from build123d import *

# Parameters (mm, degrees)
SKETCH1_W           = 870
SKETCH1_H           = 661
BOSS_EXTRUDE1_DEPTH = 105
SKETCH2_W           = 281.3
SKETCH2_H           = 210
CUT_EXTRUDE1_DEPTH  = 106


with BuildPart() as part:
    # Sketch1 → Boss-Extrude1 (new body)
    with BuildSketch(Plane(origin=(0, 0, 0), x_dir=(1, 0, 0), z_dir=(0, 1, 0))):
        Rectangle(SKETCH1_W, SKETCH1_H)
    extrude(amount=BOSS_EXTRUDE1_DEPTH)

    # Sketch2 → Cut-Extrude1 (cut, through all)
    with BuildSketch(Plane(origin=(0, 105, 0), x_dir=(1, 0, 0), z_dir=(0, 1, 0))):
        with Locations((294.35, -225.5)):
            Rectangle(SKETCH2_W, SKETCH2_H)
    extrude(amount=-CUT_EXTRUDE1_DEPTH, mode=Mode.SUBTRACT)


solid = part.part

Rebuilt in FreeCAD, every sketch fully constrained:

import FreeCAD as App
import Part
import Sketcher
from FreeCAD import Vector
Q = App.Units.Quantity


def add_polygon(sketch, points):
    """Adds a closed chain of lines whose ends are joined by coincident constraints."""
    first, n = sketch.GeometryCount, len(points)
    for a, b in zip(points, points[1:] + points[:1]):
        sketch.addGeometry(Part.LineSegment(App.Vector(*a, 0), App.Vector(*b, 0)), False)
    for i in range(n):
        sketch.addConstraint(Sketcher.Constraint("Coincident", first + i, 2, first + (i + 1) % n, 1))

doc = App.newDocument("Part")
body = doc.addObject("PartDesign::Body", "Body")

# Sketch on XZ plane
sketch1 = body.newObject("Sketcher::SketchObject", "Sketch")
sketch1.AttachmentSupport = (doc.getObject("XZ_Plane"), [""])
sketch1.MapMode = "FlatFace"
add_polygon(sketch1, [(-435, -330), (-435, 330), (435, 330), (435, -330)])  # lines 0-3
sketch1.addConstraint([
    Sketcher.Constraint("Vertical", 0),
    Sketcher.Constraint("Horizontal", 1),
    Sketcher.Constraint("Vertical", 2),
    Sketcher.Constraint("Horizontal", 3),
    Sketcher.Constraint("Symmetric", 0, 2, 2, 2, -1, 1),
    Sketcher.Constraint("DistanceX", 1, 1, 1, 2, Q("870 mm")),
    Sketcher.Constraint("DistanceY", 0, 1, 0, 2, Q("661 mm")),
])
pad1 = body.newObject("PartDesign::Pad", "Pad")
pad1.Profile = sketch1
pad1.Length = 105
pad1.Reversed = True

# Sketch on XZ plane
sketch2 = body.newObject("Sketcher::SketchObject", "Sketch001")
sketch2.AttachmentSupport = (doc.getObject("XZ_Plane"), [""])
sketch2.MapMode = "FlatFace"
sketch2.AttachmentOffset = App.Placement(Vector(0, 0, -105), App.Rotation())
add_polygon(sketch2, [(154, 120), (154, 330), (435, 330), (435, 120)])  # lines 0-3
sketch2.addConstraint([
    Sketcher.Constraint("Vertical", 0),
    Sketcher.Constraint("Horizontal", 1),
    Sketcher.Constraint("Vertical", 2),
    Sketcher.Constraint("Horizontal", 3),
    Sketcher.Constraint("DistanceY", 0, 1, 0, 2, Q("210 mm")),
    Sketcher.Constraint("DistanceX", 1, 1, 1, 2, Q("281.3 mm")),
    Sketcher.Constraint("DistanceX", -1, 1, 1, 2, Q("435 mm")),
    Sketcher.Constraint("DistanceY", -1, 1, 0, 2, Q("330.5 mm")),
])
pocket1 = body.newObject("PartDesign::Pocket", "Pocket")
pocket1.Profile = sketch2
pocket1.Type = "ThroughAll"
pocket1.Reversed = True

doc.recompute()
